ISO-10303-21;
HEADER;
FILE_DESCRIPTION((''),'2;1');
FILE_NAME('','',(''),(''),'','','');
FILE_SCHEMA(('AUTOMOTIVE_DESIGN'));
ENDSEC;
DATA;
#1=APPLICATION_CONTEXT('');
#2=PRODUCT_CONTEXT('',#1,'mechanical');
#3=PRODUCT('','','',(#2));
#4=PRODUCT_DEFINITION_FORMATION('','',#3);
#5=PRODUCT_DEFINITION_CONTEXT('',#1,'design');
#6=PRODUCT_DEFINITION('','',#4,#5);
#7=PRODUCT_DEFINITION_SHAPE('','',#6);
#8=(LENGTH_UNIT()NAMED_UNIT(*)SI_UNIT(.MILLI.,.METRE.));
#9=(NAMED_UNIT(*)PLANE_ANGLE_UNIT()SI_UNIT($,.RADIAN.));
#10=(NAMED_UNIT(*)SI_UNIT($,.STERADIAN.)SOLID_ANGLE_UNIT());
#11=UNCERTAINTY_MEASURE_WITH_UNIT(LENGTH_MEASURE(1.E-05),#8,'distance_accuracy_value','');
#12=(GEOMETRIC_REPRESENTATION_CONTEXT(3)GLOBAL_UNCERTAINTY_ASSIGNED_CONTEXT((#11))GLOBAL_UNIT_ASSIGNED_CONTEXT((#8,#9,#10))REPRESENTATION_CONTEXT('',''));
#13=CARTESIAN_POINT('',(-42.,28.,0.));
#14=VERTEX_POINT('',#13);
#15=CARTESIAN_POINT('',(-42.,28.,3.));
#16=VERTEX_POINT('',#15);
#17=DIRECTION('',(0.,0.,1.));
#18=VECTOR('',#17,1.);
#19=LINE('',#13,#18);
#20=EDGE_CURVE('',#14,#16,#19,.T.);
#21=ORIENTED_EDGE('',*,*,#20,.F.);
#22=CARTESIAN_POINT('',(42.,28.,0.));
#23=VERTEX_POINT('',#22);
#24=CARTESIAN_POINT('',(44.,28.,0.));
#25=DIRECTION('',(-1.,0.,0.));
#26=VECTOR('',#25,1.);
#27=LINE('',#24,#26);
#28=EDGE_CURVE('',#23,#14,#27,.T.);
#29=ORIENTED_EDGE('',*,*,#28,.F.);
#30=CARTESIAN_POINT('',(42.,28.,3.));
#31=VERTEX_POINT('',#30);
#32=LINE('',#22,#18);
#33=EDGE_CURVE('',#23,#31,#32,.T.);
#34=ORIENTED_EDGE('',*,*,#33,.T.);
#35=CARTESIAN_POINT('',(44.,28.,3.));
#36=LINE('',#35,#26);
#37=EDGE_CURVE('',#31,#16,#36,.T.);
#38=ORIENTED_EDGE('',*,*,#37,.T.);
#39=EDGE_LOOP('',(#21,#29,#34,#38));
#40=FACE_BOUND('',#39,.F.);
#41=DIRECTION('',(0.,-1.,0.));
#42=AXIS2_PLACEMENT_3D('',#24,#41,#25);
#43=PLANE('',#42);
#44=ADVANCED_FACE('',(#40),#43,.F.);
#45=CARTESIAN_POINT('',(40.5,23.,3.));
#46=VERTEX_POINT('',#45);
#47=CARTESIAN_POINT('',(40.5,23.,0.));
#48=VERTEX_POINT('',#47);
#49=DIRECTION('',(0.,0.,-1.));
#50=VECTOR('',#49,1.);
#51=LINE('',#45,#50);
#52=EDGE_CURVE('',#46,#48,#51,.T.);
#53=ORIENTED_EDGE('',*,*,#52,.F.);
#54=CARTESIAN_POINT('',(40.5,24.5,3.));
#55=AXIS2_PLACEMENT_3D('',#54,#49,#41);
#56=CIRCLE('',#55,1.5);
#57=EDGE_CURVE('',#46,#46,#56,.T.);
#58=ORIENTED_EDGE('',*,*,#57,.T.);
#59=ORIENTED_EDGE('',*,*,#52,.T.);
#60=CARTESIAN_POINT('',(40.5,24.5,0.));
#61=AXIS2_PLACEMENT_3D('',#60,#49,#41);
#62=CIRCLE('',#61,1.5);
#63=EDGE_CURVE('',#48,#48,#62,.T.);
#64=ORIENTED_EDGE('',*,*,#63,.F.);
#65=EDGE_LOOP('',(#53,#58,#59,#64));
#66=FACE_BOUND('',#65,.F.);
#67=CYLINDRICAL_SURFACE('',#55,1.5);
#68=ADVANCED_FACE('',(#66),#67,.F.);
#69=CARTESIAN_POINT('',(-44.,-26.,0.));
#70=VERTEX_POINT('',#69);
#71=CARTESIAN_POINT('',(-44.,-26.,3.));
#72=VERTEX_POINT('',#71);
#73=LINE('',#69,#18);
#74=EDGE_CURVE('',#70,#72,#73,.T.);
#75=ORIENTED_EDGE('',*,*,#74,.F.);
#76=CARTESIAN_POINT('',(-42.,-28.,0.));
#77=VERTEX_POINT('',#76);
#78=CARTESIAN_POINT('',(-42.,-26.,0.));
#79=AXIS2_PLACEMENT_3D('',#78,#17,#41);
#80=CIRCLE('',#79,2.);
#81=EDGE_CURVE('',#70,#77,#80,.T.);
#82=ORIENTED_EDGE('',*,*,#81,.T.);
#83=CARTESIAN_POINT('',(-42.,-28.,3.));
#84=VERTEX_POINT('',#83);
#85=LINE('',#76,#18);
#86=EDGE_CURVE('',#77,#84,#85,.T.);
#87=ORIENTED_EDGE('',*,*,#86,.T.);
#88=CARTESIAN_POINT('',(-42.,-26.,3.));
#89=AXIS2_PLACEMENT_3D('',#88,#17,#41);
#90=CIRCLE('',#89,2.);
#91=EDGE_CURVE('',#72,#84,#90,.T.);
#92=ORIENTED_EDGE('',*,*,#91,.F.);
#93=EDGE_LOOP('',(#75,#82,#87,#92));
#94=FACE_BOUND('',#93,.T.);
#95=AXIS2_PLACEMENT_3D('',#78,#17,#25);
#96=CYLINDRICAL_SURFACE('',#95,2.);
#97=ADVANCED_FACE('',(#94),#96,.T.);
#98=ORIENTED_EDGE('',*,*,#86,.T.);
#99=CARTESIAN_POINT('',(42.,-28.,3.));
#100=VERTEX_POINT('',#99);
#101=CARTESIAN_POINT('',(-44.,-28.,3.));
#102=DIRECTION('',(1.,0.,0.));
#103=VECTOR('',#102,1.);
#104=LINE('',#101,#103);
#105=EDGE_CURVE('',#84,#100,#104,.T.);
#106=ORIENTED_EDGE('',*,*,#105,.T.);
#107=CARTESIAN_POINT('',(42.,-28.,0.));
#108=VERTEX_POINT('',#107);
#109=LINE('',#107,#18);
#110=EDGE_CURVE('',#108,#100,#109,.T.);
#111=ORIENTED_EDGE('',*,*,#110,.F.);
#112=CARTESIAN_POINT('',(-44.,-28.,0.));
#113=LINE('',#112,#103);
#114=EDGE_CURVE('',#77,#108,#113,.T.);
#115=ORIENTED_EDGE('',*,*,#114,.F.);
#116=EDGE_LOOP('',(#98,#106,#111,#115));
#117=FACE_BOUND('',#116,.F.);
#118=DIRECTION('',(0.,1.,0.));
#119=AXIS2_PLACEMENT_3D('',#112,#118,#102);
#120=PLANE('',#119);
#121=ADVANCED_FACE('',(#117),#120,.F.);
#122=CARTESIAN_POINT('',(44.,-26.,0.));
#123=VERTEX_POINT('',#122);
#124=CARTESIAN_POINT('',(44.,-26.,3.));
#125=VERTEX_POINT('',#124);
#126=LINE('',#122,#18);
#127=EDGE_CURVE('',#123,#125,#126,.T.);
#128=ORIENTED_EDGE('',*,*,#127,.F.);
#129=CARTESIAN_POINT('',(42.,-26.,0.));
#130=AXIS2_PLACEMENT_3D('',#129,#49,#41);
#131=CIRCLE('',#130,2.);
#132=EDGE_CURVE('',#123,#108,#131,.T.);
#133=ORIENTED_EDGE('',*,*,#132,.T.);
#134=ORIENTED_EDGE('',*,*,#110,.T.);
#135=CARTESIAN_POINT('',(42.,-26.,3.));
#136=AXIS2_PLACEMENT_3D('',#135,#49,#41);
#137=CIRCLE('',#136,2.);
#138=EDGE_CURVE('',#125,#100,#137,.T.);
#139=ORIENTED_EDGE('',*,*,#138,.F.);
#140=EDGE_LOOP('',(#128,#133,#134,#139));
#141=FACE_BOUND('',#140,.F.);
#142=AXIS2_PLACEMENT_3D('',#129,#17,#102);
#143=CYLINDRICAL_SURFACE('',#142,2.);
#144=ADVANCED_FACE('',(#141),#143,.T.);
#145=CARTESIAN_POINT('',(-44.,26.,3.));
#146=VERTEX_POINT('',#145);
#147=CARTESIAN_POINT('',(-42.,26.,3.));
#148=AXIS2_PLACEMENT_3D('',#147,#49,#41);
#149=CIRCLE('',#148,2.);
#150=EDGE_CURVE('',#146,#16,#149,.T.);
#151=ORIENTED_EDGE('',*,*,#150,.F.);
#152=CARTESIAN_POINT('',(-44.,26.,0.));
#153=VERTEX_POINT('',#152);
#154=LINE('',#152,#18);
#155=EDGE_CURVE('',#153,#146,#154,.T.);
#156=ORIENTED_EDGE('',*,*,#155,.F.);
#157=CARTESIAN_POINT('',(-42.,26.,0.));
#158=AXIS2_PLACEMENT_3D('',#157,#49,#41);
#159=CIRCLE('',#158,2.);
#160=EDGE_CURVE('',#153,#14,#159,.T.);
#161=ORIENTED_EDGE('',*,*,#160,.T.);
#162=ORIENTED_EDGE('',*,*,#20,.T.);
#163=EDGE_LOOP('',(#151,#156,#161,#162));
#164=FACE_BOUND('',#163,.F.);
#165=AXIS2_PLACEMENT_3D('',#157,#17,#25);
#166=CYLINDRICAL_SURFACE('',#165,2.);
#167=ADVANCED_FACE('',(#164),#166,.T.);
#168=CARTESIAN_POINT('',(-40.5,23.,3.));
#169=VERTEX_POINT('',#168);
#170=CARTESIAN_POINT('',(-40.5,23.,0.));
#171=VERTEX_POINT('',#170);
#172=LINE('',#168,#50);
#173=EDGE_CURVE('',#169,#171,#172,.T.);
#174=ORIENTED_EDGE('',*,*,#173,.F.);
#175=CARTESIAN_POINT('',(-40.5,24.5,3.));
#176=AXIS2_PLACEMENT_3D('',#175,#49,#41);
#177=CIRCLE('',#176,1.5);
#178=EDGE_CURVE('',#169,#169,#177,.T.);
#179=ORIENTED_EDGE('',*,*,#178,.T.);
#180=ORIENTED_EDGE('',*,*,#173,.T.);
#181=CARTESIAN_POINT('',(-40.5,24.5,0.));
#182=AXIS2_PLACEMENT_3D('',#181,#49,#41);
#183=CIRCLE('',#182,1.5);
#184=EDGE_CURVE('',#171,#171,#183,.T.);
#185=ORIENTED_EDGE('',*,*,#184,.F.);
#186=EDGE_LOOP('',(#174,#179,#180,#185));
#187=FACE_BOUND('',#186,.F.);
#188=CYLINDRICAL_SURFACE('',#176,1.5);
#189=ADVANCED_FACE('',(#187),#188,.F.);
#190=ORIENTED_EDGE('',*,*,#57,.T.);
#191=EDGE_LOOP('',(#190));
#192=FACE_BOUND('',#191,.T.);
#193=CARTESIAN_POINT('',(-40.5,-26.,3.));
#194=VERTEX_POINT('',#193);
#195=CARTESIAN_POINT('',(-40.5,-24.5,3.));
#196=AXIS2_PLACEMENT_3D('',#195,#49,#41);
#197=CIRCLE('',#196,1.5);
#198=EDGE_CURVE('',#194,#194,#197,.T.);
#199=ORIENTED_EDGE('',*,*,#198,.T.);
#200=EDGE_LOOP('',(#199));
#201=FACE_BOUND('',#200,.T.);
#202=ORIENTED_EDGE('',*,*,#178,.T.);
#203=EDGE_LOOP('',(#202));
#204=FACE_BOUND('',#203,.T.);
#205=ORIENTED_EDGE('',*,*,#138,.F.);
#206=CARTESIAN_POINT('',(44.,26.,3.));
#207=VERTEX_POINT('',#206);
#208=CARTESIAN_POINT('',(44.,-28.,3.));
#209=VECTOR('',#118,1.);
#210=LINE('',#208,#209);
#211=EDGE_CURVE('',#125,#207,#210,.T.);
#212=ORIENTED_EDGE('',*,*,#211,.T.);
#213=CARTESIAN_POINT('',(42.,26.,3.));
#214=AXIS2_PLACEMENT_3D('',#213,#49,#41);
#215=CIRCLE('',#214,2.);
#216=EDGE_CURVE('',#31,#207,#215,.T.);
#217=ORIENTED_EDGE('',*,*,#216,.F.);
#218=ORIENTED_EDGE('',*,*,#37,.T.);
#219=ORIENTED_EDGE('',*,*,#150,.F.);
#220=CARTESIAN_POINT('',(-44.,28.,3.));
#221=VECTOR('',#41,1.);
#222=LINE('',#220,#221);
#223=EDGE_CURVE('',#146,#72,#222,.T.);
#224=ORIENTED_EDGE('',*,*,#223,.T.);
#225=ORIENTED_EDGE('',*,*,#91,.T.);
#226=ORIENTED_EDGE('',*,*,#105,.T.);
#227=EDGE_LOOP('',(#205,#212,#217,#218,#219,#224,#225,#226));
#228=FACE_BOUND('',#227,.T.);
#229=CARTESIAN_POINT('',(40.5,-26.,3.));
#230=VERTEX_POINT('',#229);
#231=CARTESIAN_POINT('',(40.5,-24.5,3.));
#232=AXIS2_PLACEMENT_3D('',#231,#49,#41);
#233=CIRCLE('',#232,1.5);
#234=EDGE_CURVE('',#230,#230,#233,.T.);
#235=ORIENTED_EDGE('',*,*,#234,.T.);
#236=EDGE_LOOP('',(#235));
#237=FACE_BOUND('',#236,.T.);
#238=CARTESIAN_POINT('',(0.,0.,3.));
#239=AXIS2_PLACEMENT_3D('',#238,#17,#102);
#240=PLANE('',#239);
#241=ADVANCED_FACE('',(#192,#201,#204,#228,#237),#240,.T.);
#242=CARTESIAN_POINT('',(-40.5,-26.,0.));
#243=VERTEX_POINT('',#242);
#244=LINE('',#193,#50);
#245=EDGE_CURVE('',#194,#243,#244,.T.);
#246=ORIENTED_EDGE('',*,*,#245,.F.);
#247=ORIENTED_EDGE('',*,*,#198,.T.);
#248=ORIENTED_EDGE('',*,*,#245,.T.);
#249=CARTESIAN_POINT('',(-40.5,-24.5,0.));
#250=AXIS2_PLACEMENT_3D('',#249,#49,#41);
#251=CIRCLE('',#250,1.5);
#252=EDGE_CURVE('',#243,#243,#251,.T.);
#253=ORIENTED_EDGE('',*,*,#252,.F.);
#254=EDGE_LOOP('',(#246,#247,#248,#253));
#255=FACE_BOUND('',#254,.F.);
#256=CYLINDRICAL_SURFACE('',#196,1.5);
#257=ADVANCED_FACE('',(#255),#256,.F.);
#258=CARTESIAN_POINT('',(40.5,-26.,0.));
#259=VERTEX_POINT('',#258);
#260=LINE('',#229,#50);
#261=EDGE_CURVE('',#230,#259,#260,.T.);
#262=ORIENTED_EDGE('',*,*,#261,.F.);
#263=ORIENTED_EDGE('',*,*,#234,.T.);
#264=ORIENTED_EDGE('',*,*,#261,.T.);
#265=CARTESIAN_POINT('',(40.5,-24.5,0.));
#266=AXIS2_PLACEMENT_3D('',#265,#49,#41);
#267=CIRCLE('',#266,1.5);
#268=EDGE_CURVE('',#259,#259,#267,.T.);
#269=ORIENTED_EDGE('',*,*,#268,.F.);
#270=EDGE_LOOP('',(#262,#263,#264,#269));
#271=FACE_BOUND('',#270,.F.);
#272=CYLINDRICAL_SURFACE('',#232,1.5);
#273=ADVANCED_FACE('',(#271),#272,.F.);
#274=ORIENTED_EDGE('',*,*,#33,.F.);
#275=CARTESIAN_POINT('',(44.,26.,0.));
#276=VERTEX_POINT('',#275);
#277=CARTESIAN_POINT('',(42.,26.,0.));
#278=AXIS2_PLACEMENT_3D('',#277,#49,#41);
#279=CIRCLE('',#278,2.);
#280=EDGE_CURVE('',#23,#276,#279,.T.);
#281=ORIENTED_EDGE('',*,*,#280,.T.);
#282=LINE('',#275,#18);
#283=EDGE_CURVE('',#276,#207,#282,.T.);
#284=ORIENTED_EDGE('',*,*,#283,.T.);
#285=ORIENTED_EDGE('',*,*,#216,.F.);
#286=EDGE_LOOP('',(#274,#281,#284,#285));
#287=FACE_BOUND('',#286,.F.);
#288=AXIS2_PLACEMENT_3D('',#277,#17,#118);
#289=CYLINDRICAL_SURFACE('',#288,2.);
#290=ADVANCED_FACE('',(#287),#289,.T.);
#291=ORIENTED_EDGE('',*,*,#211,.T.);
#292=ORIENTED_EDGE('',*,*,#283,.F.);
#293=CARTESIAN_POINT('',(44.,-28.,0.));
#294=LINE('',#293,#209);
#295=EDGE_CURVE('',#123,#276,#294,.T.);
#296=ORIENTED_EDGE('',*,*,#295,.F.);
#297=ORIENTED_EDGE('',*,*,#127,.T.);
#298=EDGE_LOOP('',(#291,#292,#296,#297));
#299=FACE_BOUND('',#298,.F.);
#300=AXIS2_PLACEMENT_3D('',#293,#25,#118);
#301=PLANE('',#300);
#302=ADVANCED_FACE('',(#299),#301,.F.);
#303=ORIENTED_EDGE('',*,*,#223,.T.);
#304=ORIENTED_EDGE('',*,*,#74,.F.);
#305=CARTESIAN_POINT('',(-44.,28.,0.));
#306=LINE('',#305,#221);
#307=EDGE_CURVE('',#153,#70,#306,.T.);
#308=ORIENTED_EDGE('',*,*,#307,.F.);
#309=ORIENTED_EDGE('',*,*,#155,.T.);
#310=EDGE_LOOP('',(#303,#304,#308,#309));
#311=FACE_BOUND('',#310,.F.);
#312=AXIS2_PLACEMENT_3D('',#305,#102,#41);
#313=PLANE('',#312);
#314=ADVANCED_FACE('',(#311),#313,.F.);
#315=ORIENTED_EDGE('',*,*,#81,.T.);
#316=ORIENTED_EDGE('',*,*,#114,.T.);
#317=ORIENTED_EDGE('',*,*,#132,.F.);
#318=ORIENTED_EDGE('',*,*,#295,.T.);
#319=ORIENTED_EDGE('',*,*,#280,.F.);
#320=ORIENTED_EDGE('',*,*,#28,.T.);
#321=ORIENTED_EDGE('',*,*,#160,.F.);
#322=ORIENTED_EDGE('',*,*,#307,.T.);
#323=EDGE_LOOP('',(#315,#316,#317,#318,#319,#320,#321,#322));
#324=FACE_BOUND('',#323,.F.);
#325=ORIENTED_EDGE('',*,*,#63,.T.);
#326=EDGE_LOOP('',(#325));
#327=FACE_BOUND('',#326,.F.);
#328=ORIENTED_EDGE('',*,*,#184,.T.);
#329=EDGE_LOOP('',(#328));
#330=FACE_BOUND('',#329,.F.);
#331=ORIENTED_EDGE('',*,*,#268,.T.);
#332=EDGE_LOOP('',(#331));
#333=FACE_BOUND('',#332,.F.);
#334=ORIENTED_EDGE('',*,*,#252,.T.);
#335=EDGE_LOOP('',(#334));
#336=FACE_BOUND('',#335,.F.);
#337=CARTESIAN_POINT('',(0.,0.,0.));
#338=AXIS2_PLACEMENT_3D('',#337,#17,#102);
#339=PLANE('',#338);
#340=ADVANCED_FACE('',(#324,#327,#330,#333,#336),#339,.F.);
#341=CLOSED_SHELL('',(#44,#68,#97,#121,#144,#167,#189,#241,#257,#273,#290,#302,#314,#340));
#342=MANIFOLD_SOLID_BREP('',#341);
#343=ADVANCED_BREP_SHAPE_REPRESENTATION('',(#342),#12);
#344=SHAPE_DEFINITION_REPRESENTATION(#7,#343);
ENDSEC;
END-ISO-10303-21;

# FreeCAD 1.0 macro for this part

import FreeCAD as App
import Part
import Sketcher
from FreeCAD import Vector
Q = App.Units.Quantity


def edges_at(feature, points):
    """Names of the edges that pass closest to the given points."""
    edges = feature.Shape.Edges
    near = lambda p: min(range(len(edges)), key=lambda i: edges[i].distToShape(Part.Vertex(*p))[0])
    return sorted({f"Edge{near(p) + 1}" for p in points})


def add_polygon(sketch, points):
    """Adds a closed chain of lines whose ends are joined by coincident constraints."""
    first, n = sketch.GeometryCount, len(points)
    for a, b in zip(points, points[1:] + points[:1]):
        sketch.addGeometry(Part.LineSegment(App.Vector(*a, 0), App.Vector(*b, 0)), False)
    for i in range(n):
        sketch.addConstraint(Sketcher.Constraint("Coincident", first + i, 2, first + (i + 1) % n, 1))

doc = App.newDocument("Part")
body = doc.addObject("PartDesign::Body", "Body")

sketch1 = body.newObject("Sketcher::SketchObject", "Sketch")
sketch1.AttachmentSupport = (doc.getObject("XY_Plane"), [""])
sketch1.MapMode = "FlatFace"
add_polygon(sketch1, [(-44, 28), (-44, -28), (44, -28), (44, 28)])
sketch1.addConstraint(Sketcher.Constraint("Vertical", 0))
sketch1.addConstraint(Sketcher.Constraint("Horizontal", 1))
sketch1.addConstraint(Sketcher.Constraint("Vertical", 2))
sketch1.addConstraint(Sketcher.Constraint("Horizontal", 3))
sketch1.addConstraint(Sketcher.Constraint("Symmetric", 0, 2, 2, 2, -1, 1))
sketch1.addConstraint(Sketcher.Constraint("DistanceX", 1, 1, 1, 2, Q("88 mm")))
sketch1.addConstraint(Sketcher.Constraint("DistanceY", 0, 2, 0, 1, Q("56 mm")))
pad1 = body.newObject("PartDesign::Pad", "Pad")
pad1.Profile = sketch1
pad1.Length = 3
doc.recompute()

fillet = body.newObject("PartDesign::Fillet", "Fillet")
fillet.Base = (pad1, edges_at(pad1, [
    (44, 28, 1.5),
    (44, -28, 1.5),
    (-44, 28, 1.5),
    (-44, -28, 1.5),
]))
fillet.Radius = 2

sketch2 = body.newObject("Sketcher::SketchObject", "Sketch001")
sketch2.AttachmentSupport = (doc.getObject("XY_Plane"), [""])
sketch2.MapMode = "FlatFace"
sketch2.AttachmentOffset = App.Placement(Vector(0, 0, 3), App.Rotation())
sketch2.addGeometry(Part.Circle(Vector(-40.5, -24.5, 0), Vector(0, 0, 1), 1.5), False)
sketch2.addGeometry(Part.Circle(Vector(-40.5, 24.5, 0), Vector(0, 0, 1), 1.5), False)
sketch2.addGeometry(Part.Circle(Vector(40.5, -24.5, 0), Vector(0, 0, 1), 1.5), False)
sketch2.addGeometry(Part.Circle(Vector(40.5, 24.5, 0), Vector(0, 0, 1), 1.5), False)
sketch2.addConstraint(Sketcher.Constraint("Equal", 0, 1))
sketch2.addConstraint(Sketcher.Constraint("Equal", 1, 2))
sketch2.addConstraint(Sketcher.Constraint("Equal", 2, 3))
sketch2.addConstraint(Sketcher.Constraint("Symmetric", 1, 3, 2, 3, -1, 1))
sketch2.addConstraint(Sketcher.Constraint("Symmetric", 0, 3, 3, 3, -1, 1))
sketch2.addConstraint(Sketcher.Constraint("Symmetric", 0, 3, 2, 3, -2))
sketch2.addConstraint(Sketcher.Constraint("Diameter", 0, Q("3 mm")))
sketch2.addConstraint(Sketcher.Constraint("DistanceY", 0, 3, 1, 3, Q("49 mm")))
sketch2.addConstraint(Sketcher.Constraint("DistanceX", 0, 3, 2, 3, Q("81 mm")))
doc.recompute()
hole = body.newObject("PartDesign::Hole", "Hole")
hole.Profile = sketch2
hole.ThreadType = "None"
hole.Diameter = 3
hole.DepthType = "ThroughAll"

doc.recompute()
